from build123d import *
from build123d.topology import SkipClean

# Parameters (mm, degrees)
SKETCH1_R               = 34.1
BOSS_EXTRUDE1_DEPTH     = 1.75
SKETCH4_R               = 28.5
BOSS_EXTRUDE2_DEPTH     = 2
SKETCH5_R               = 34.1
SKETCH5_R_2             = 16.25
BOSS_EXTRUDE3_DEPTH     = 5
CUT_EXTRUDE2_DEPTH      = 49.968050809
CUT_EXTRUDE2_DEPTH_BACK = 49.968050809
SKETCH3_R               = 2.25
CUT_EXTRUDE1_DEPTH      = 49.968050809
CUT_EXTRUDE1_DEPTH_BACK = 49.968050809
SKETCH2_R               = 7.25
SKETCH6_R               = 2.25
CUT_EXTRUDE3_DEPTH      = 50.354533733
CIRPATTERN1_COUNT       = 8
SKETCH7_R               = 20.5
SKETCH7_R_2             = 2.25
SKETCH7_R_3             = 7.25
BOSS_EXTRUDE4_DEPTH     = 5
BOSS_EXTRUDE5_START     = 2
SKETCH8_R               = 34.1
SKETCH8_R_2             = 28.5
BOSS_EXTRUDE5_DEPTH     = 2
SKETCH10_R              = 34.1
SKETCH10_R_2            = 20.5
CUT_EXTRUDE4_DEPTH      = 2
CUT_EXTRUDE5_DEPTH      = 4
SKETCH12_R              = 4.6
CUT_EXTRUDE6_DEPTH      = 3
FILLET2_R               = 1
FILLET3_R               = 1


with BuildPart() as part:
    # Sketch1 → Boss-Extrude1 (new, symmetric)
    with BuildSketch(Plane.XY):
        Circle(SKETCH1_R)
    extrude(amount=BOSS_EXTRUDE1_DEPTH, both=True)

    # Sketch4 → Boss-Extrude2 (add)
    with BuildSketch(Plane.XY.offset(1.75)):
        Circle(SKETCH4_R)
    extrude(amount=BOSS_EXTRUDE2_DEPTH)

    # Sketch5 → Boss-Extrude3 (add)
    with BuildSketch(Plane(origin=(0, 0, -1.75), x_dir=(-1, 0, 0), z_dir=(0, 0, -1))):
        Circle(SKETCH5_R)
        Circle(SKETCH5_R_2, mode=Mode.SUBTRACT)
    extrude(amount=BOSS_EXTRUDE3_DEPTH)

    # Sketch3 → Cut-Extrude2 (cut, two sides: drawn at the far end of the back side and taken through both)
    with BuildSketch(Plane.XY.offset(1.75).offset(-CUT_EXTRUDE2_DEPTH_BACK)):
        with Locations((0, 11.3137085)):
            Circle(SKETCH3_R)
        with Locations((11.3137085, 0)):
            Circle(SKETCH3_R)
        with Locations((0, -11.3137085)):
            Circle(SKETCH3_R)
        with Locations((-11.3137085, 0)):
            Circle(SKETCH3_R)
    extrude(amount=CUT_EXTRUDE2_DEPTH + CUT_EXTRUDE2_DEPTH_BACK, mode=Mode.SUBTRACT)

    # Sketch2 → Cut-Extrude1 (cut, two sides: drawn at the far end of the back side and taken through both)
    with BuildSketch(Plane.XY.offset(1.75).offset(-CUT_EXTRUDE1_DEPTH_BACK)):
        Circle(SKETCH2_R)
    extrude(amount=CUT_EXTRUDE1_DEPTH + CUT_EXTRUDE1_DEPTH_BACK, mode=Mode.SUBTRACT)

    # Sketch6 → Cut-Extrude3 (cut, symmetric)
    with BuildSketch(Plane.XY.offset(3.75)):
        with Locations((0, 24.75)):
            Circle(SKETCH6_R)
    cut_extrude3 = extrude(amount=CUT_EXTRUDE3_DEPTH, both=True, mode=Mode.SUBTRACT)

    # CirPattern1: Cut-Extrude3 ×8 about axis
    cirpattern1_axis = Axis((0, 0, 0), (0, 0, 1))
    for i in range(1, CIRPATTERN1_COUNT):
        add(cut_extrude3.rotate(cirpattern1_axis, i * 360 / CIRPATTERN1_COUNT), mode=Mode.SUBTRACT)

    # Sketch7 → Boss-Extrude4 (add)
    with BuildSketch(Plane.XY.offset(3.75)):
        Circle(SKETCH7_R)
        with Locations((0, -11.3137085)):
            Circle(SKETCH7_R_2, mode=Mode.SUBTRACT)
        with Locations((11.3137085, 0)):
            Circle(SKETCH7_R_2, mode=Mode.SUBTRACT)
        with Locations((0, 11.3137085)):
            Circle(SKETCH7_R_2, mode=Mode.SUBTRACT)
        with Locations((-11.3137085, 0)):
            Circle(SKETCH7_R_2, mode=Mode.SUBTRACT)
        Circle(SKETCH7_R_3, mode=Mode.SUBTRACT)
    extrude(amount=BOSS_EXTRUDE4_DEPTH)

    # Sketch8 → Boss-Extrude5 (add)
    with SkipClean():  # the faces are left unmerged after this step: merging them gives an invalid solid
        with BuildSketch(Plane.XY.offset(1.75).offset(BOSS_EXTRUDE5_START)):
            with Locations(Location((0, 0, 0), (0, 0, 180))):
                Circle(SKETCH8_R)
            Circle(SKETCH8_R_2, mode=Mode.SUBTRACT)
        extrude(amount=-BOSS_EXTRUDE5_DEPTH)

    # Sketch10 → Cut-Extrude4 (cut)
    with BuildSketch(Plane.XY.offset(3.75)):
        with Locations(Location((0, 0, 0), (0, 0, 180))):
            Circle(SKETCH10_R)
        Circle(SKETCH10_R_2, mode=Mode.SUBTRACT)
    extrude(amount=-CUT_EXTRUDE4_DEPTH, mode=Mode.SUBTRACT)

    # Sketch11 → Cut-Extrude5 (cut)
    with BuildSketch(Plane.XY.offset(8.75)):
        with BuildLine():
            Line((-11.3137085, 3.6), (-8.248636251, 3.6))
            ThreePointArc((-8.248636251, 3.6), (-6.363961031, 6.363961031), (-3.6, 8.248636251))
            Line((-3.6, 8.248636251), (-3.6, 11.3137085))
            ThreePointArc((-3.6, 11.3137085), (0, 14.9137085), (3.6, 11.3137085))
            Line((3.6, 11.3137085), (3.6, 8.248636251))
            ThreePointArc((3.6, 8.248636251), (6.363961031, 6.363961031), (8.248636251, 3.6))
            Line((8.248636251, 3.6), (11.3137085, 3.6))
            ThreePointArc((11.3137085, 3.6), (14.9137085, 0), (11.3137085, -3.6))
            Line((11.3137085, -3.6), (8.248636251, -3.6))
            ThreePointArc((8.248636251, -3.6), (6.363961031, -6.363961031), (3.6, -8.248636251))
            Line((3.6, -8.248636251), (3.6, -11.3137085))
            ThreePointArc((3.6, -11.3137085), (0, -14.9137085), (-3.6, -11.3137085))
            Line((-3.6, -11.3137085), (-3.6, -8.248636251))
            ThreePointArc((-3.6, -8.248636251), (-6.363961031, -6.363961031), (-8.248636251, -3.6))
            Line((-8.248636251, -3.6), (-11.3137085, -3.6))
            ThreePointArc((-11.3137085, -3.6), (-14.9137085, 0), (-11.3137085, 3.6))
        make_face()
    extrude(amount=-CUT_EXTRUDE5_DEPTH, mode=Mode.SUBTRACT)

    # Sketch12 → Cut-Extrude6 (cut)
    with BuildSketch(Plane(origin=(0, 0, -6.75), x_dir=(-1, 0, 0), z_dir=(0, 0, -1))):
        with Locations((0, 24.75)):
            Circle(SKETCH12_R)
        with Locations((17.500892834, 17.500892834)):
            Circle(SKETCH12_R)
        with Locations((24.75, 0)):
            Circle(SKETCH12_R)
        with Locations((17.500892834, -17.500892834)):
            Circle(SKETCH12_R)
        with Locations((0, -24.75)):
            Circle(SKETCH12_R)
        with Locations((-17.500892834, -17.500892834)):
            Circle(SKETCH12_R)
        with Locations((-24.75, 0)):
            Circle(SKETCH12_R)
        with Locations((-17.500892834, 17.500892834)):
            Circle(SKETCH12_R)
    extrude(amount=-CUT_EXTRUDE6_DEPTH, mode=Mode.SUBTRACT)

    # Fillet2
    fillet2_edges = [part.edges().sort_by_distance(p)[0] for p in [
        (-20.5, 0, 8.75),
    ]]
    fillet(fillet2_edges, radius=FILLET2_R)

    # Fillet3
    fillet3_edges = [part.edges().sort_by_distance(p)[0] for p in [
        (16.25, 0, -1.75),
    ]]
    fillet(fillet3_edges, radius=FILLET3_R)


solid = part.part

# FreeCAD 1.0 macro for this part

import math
import FreeCAD as App
import Part
import Sketcher

V = App.Vector
Q = App.Units.Quantity


def edges_at(feature, points):
    """Names of the edges that pass closest to the given points."""
    edges = feature.Shape.Edges
    near = lambda p: min(range(len(edges)), key=lambda i: edges[i].distToShape(Part.Vertex(*p))[0])
    return sorted({f"Edge{near(p) + 1}" for p in points})

doc = App.newDocument("Part")
body = doc.addObject("PartDesign::Body", "Body")

# Sketch on XY plane
sketch1 = body.newObject("Sketcher::SketchObject", "Sketch")
sketch1.AttachmentSupport = (doc.getObject("XY_Plane"), [""])
sketch1.MapMode = "FlatFace"
sketch1.addGeometry(Part.Circle(V(0, 0, 0), V(0, 0, 1), 34), False)
sketch1.addConstraint([
    Sketcher.Constraint("Coincident", 0, 3, -1, 1),
    Sketcher.Constraint("Diameter", 0, Q("68.2 mm")),
])
pad1 = body.newObject("PartDesign::Pad", "Pad")
pad1.Profile = sketch1
pad1.Length = 3.5
pad1.Midplane = True

# Sketch on XY plane
sketch2 = body.newObject("Sketcher::SketchObject", "Sketch001")
sketch2.AttachmentSupport = (doc.getObject("XY_Plane"), [""])
sketch2.MapMode = "FlatFace"
sketch2.AttachmentOffset = App.Placement(V(0, 0, 1.75), App.Rotation())
sketch2.addGeometry(Part.Circle(V(0, 0, 0), V(0, 0, 1), 28), False)
sketch2.addConstraint([
    Sketcher.Constraint("Coincident", 0, 3, -1, 1),
    Sketcher.Constraint("Diameter", 0, Q("57 mm")),
])
pad2 = body.newObject("PartDesign::Pad", "Pad001")
pad2.Profile = sketch2
pad2.Length = 2

# Sketch on XY plane
sketch3 = body.newObject("Sketcher::SketchObject", "Sketch002")
sketch3.AttachmentSupport = (doc.getObject("XY_Plane"), [""])
sketch3.MapMode = "FlatFace"
sketch3.AttachmentOffset = App.Placement(V(0, 0, -1.75), App.Rotation())
sketch3.addGeometry([
    Part.Circle(V(0, 0, 0), V(0, 0, 1), 34),
    Part.Circle(V(0, 0, 0), V(0, 0, 1), 16),
], False)
sketch3.addConstraint([
    Sketcher.Constraint("Coincident", 0, 3, -1, 1),
    Sketcher.Constraint("Coincident", 1, 3, -1, 1),
    Sketcher.Constraint("Diameter", 0, Q("68.2 mm")),
    Sketcher.Constraint("Diameter", 1, Q("32.5 mm")),
])
pad3 = body.newObject("PartDesign::Pad", "Pad002")
pad3.Profile = sketch3
pad3.Length = 5
pad3.Reversed = True

# Sketch on XY plane
sketch4 = body.newObject("Sketcher::SketchObject", "Sketch003")
sketch4.AttachmentSupport = (doc.getObject("XY_Plane"), [""])
sketch4.MapMode = "FlatFace"
sketch4.AttachmentOffset = App.Placement(V(0, 0, 1.75), App.Rotation())
sketch4.addGeometry([
    Part.Circle(V(0, 11.3, 0), V(0, 0, 1), 2.2),
    Part.Circle(V(11.3, 0, 0), V(0, 0, 1), 2.2),
    Part.Circle(V(0, -11.3, 0), V(0, 0, 1), 2.2),
    Part.Circle(V(-11.3, 0, 0), V(0, 0, 1), 2.2),
], False)
sketch4.addConstraint([
    Sketcher.Constraint("Equal", 0, 1),
    Sketcher.Constraint("Equal", 1, 2),
    Sketcher.Constraint("Equal", 2, 3),
    Sketcher.Constraint("Symmetric", 0, 3, 2, 3, -1, 1),
    Sketcher.Constraint("Symmetric", 1, 3, 3, 3, -1, 1),
    Sketcher.Constraint("PointOnObject", 0, 3, -2),
    Sketcher.Constraint("PointOnObject", 1, 3, -1),
    Sketcher.Constraint("Diameter", 0, Q("4.5 mm")),
    Sketcher.Constraint("DistanceY", -1, 1, 0, 3, Q("11.313709 mm")),
    Sketcher.Constraint("DistanceX", -1, 1, 1, 3, Q("11.313709 mm")),
])
pocket1 = body.newObject("PartDesign::Pocket", "Pocket")
pocket1.Profile = sketch4
pocket1.Type = "ThroughAll"
pocket1.Midplane = True

# Sketch on XY plane
sketch5 = body.newObject("Sketcher::SketchObject", "Sketch004")
sketch5.AttachmentSupport = (doc.getObject("XY_Plane"), [""])
sketch5.MapMode = "FlatFace"
sketch5.AttachmentOffset = App.Placement(V(0, 0, 1.75), App.Rotation())
sketch5.addGeometry(Part.Circle(V(0, 0, 0), V(0, 0, 1), 7), False)
sketch5.addConstraint([
    Sketcher.Constraint("Coincident", 0, 3, -1, 1),
    Sketcher.Constraint("Diameter", 0, Q("14.5 mm")),
])
pocket2 = body.newObject("PartDesign::Pocket", "Pocket001")
pocket2.Profile = sketch5
pocket2.Type = "ThroughAll"
pocket2.Midplane = True

# Sketch on XY plane
sketch6 = body.newObject("Sketcher::SketchObject", "Sketch005")
sketch6.AttachmentSupport = (doc.getObject("XY_Plane"), [""])
sketch6.MapMode = "FlatFace"
sketch6.AttachmentOffset = App.Placement(V(0, 0, 3.75), App.Rotation())
sketch6.addGeometry(Part.Circle(V(0, 24.8, 0), V(0, 0, 1), 2.2), False)
sketch6.addConstraint([
    Sketcher.Constraint("PointOnObject", 0, 3, -2),
    Sketcher.Constraint("Diameter", 0, Q("4.5 mm")),
    Sketcher.Constraint("DistanceY", -1, 1, 0, 3, Q("24.75 mm")),
])
pocket3 = body.newObject("PartDesign::Pocket", "Pocket002")
pocket3.Profile = sketch6
pocket3.Length = 100.709067
pocket3.Midplane = True
doc.recompute()

polarpattern = body.newObject("PartDesign::PolarPattern", "PolarPattern")
polarpattern.Originals = [pocket3]
polarpattern.Axis = (doc.getObject("Z_Axis"), [""])
polarpattern.Angle = 360
polarpattern.Occurrences = 8
body.Tip = polarpattern

# Sketch on XY plane
sketch7 = body.newObject("Sketcher::SketchObject", "Sketch006")
sketch7.AttachmentSupport = (doc.getObject("XY_Plane"), [""])
sketch7.MapMode = "FlatFace"
sketch7.AttachmentOffset = App.Placement(V(0, 0, 3.75), App.Rotation())
sketch7.addGeometry([
    Part.Circle(V(0, 0, 0), V(0, 0, 1), 20.5),  # 0
    Part.Circle(V(0, -11.3, 0), V(0, 0, 1), 2.2),  # 1
    Part.Circle(V(-11.3, 0, 0), V(0, 0, 1), 2.2),  # 2
    Part.Circle(V(0, 0, 0), V(0, 0, 1), 7.2),  # 3
    Part.Circle(V(11.3, 0, 0), V(0, 0, 1), 2.2),  # 4
    Part.Circle(V(0, 11.3, 0), V(0, 0, 1), 2.2),  # 5
], False)
sketch7.addConstraint([
    Sketcher.Constraint("Coincident", 0, 3, -1, 1),
    Sketcher.Constraint("Coincident", 3, 3, -1, 1),
    Sketcher.Constraint("Equal", 1, 2),
    Sketcher.Constraint("Equal", 2, 4),
    Sketcher.Constraint("Equal", 4, 5),
    Sketcher.Constraint("Symmetric", 2, 3, 4, 3, -1, 1),
    Sketcher.Constraint("Symmetric", 1, 3, 5, 3, -1, 1),
    Sketcher.Constraint("PointOnObject", 1, 3, -2),
    Sketcher.Constraint("PointOnObject", 2, 3, -1),
    Sketcher.Constraint("Diameter", 0, Q("41 mm")),
    Sketcher.Constraint("Diameter", 1, Q("4.5 mm")),
    Sketcher.Constraint("Diameter", 3, Q("14.5 mm")),
    Sketcher.Constraint("DistanceY", 1, 3, -1, 1, Q("11.313709 mm")),
    Sketcher.Constraint("DistanceX", 2, 3, -1, 1, Q("11.313709 mm")),
])
pad4 = body.newObject("PartDesign::Pad", "Pad003")
pad4.Profile = sketch7
pad4.Length = 5

# Sketch on XY plane
sketch8 = body.newObject("Sketcher::SketchObject", "Sketch007")
sketch8.AttachmentSupport = (doc.getObject("XY_Plane"), [""])
sketch8.MapMode = "FlatFace"
sketch8.AttachmentOffset = App.Placement(V(0, 0, 3.75), App.Rotation())
sketch8.addGeometry([
    Part.Circle(V(0, 0, 0), V(0, 0, 1), 34),
    Part.Circle(V(0, 0, 0), V(0, 0, 1), 28),
], False)
sketch8.addConstraint([
    Sketcher.Constraint("Coincident", 0, 3, -1, 1),
    Sketcher.Constraint("Coincident", 1, 3, -1, 1),
    Sketcher.Constraint("Diameter", 1, Q("57 mm")),
    Sketcher.Constraint("Diameter", 0, Q("68.2 mm")),
])
pad5 = body.newObject("PartDesign::Pad", "Pad004")
pad5.Profile = sketch8
pad5.Length = 2
pad5.Reversed = True

# Sketch on XY plane
sketch9 = body.newObject("Sketcher::SketchObject", "Sketch008")
sketch9.AttachmentSupport = (doc.getObject("XY_Plane"), [""])
sketch9.MapMode = "FlatFace"
sketch9.AttachmentOffset = App.Placement(V(0, 0, 3.75), App.Rotation())
sketch9.addGeometry([
    Part.Circle(V(0, 0, 0), V(0, 0, 1), 34),
    Part.Circle(V(0, 0, 0), V(0, 0, 1), 20),
], False)
sketch9.addConstraint([
    Sketcher.Constraint("Coincident", 0, 3, -1, 1),
    Sketcher.Constraint("Coincident", 1, 3, -1, 1),
    Sketcher.Constraint("Diameter", 1, Q("41 mm")),
    Sketcher.Constraint("Diameter", 0, Q("68.2 mm")),
])
pocket4 = body.newObject("PartDesign::Pocket", "Pocket003")
pocket4.Profile = sketch9
pocket4.Length = 2

# Sketch on XY plane
sketch10 = body.newObject("Sketcher::SketchObject", "Sketch009")
sketch10.AttachmentSupport = (doc.getObject("XY_Plane"), [""])
sketch10.MapMode = "FlatFace"
sketch10.AttachmentOffset = App.Placement(V(0, 0, 8.75), App.Rotation())
sketch10.addGeometry([
    Part.LineSegment(V(-8.2, 3.6, 0), V(-11.3, 3.6, 0)),  # 0
    Part.ArcOfCircle(Part.Circle(V(-11.3, 0, 0), V(0, 0, 1), 3.6), math.radians(90), math.radians(270)),  # 1
    Part.LineSegment(V(-11.3, -3.6, 0), V(-8.2, -3.6, 0)),  # 2
    Part.ArcOfCircle(Part.Circle(V(0, 0, 0), V(0, 0, 1), 9), math.radians(-156), math.radians(-114)),  # 3
    Part.LineSegment(V(-3.6, -8.2, 0), V(-3.6, -11.3, 0)),  # 4
    Part.ArcOfCircle(Part.Circle(V(0, -11.3, 0), V(0, 0, 1), 3.6), math.radians(180), math.radians(360)),  # 5
    Part.LineSegment(V(3.6, -11.3, 0), V(3.6, -8.2, 0)),  # 6
    Part.ArcOfCircle(Part.Circle(V(0, 0, 0), V(0, 0, 1), 9), math.radians(-66), math.radians(-24)),  # 7
    Part.LineSegment(V(8.2, -3.6, 0), V(11.3, -3.6, 0)),  # 8
    Part.ArcOfCircle(Part.Circle(V(11.3, 0, 0), V(0, 0, 1), 3.6), math.radians(-90), math.radians(90)),  # 9
    Part.LineSegment(V(11.3, 3.6, 0), V(8.2, 3.6, 0)),  # 10
    Part.ArcOfCircle(Part.Circle(V(0, 0, 0), V(0, 0, 1), 9), math.radians(24), math.radians(66)),  # 11
    Part.LineSegment(V(3.6, 8.2, 0), V(3.6, 11.3, 0)),  # 12
    Part.ArcOfCircle(Part.Circle(V(0, 11.3, 0), V(0, 0, 1), 3.6), math.radians(0), math.radians(180)),  # 13
    Part.LineSegment(V(-3.6, 11.3, 0), V(-3.6, 8.2, 0)),  # 14
    Part.ArcOfCircle(Part.Circle(V(0, 0, 0), V(0, 0, 1), 9), math.radians(114), math.radians(156)),  # 15
], False)
sketch10.addConstraint([
    Sketcher.Constraint("Tangent", 0, 2, 1, 1),
    Sketcher.Constraint("Tangent", 1, 2, 2, 1),
    Sketcher.Constraint("Coincident", 2, 2, 3, 1),
    Sketcher.Constraint("Coincident", 3, 2, 4, 1),
    Sketcher.Constraint("Tangent", 4, 2, 5, 1),
    Sketcher.Constraint("Tangent", 5, 2, 6, 1),
    Sketcher.Constraint("Coincident", 6, 2, 7, 1),
    Sketcher.Constraint("Coincident", 7, 2, 8, 1),
    Sketcher.Constraint("Tangent", 8, 2, 9, 1),
    Sketcher.Constraint("Tangent", 9, 2, 10, 1),
    Sketcher.Constraint("Coincident", 10, 2, 11, 1),
    Sketcher.Constraint("Coincident", 11, 2, 12, 1),
    Sketcher.Constraint("Tangent", 12, 2, 13, 1),
    Sketcher.Constraint("Tangent", 13, 2, 14, 1),
    Sketcher.Constraint("Coincident", 14, 2, 15, 1),
    Sketcher.Constraint("Coincident", 15, 2, 0, 1),
    Sketcher.Constraint("Horizontal", 0),
    Sketcher.Constraint("Horizontal", 2),
    Sketcher.Constraint("Vertical", 4),
    Sketcher.Constraint("Vertical", 6),
    Sketcher.Constraint("Horizontal", 8),
    Sketcher.Constraint("Horizontal", 10),
    Sketcher.Constraint("Vertical", 12),
    Sketcher.Constraint("Vertical", 14),
    Sketcher.Constraint("Coincident", 3, 3, -1, 1),
    Sketcher.Constraint("Coincident", 7, 3, -1, 1),
    Sketcher.Constraint("Coincident", 11, 3, -1, 1),
    Sketcher.Constraint("Coincident", 15, 3, -1, 1),
    Sketcher.Constraint("Equal", 1, 5),
    Sketcher.Constraint("Equal", 3, 7),
    Sketcher.Constraint("Equal", 5, 9),
    Sketcher.Constraint("Equal", 7, 11),
    Sketcher.Constraint("Equal", 9, 13),
    Sketcher.Constraint("Equal", 11, 15),
    Sketcher.Constraint("Symmetric", 1, 3, 9, 3, -1, 1),
    Sketcher.Constraint("Symmetric", 5, 3, 13, 3, -1, 1),
    Sketcher.Constraint("PointOnObject", 1, 3, -1),
    Sketcher.Constraint("PointOnObject", 5, 3, -2),
    Sketcher.Constraint("Equal", 10, 4),
    Sketcher.Constraint("Radius", 3, Q("9 mm")),
    Sketcher.Constraint("Radius", 1, Q("3.6 mm")),
    Sketcher.Constraint("DistanceX", 0, 2, 0, 1, Q("3.065072 mm")),
])
pocket5 = body.newObject("PartDesign::Pocket", "Pocket004")
pocket5.Profile = sketch10
pocket5.Length = 4

# Sketch on XY plane
sketch11 = body.newObject("Sketcher::SketchObject", "Sketch010")
sketch11.AttachmentSupport = (doc.getObject("XY_Plane"), [""])
sketch11.MapMode = "FlatFace"
sketch11.AttachmentOffset = App.Placement(V(0, 0, -6.75), App.Rotation())
sketch11.addGeometry([
    Part.Circle(V(0, 24.8, 0), V(0, 0, 1), 4.6),  # 0
    Part.Circle(V(-17.5, 17.5, 0), V(0, 0, 1), 4.6),  # 1
    Part.Circle(V(-24.8, 0, 0), V(0, 0, 1), 4.6),  # 2
    Part.Circle(V(-17.5, -17.5, 0), V(0, 0, 1), 4.6),  # 3
    Part.Circle(V(0, -24.8, 0), V(0, 0, 1), 4.6),  # 4
    Part.Circle(V(17.5, -17.5, 0), V(0, 0, 1), 4.6),  # 5
    Part.Circle(V(24.8, 0, 0), V(0, 0, 1), 4.6),  # 6
    Part.Circle(V(17.5, 17.5, 0), V(0, 0, 1), 4.6),  # 7
], False)
sketch11.addConstraint([
    Sketcher.Constraint("Equal", 0, 1),
    Sketcher.Constraint("Equal", 1, 2),
    Sketcher.Constraint("Equal", 2, 3),
    Sketcher.Constraint("Equal", 3, 4),
    Sketcher.Constraint("Equal", 4, 5),
    Sketcher.Constraint("Equal", 5, 6),
    Sketcher.Constraint("Equal", 6, 7),
    Sketcher.Constraint("Symmetric", 0, 3, 4, 3, -1, 1),
    Sketcher.Constraint("Symmetric", 1, 3, 5, 3, -1, 1),
    Sketcher.Constraint("Symmetric", 2, 3, 6, 3, -1, 1),
    Sketcher.Constraint("Symmetric", 3, 3, 7, 3, -1, 1),
    Sketcher.Constraint("Symmetric", 3, 3, 5, 3, -2),
    Sketcher.Constraint("PointOnObject", 0, 3, -2),
    Sketcher.Constraint("PointOnObject", 2, 3, -1),
    Sketcher.Constraint("Diameter", 0, Q("9.2 mm")),
    Sketcher.Constraint("DistanceY", 4, 3, 0, 3, Q("49.5 mm")),
    Sketcher.Constraint("DistanceX", 2, 3, -1, 1, Q("24.75 mm")),
    Sketcher.Constraint("DistanceX", 1, 3, -1, 1, Q("17.500893 mm")),
    Sketcher.Constraint("DistanceY", -1, 1, 1, 3, Q("17.500893 mm")),
])
pocket6 = body.newObject("PartDesign::Pocket", "Pocket005")
pocket6.Profile = sketch11
pocket6.Length = 3
pocket6.Reversed = True
doc.recompute()

fillet = body.newObject("PartDesign::Fillet", "Fillet")
fillet.Base = (pocket6, edges_at(pocket6, [(-20.5, 0, 8.75)]))
fillet.Radius = 1
doc.recompute()

fillet2 = body.newObject("PartDesign::Fillet", "Fillet001")
fillet2.Base = (fillet, edges_at(fillet, [(16.25, 0, -1.75)]))
fillet2.Radius = 1

doc.recompute()
